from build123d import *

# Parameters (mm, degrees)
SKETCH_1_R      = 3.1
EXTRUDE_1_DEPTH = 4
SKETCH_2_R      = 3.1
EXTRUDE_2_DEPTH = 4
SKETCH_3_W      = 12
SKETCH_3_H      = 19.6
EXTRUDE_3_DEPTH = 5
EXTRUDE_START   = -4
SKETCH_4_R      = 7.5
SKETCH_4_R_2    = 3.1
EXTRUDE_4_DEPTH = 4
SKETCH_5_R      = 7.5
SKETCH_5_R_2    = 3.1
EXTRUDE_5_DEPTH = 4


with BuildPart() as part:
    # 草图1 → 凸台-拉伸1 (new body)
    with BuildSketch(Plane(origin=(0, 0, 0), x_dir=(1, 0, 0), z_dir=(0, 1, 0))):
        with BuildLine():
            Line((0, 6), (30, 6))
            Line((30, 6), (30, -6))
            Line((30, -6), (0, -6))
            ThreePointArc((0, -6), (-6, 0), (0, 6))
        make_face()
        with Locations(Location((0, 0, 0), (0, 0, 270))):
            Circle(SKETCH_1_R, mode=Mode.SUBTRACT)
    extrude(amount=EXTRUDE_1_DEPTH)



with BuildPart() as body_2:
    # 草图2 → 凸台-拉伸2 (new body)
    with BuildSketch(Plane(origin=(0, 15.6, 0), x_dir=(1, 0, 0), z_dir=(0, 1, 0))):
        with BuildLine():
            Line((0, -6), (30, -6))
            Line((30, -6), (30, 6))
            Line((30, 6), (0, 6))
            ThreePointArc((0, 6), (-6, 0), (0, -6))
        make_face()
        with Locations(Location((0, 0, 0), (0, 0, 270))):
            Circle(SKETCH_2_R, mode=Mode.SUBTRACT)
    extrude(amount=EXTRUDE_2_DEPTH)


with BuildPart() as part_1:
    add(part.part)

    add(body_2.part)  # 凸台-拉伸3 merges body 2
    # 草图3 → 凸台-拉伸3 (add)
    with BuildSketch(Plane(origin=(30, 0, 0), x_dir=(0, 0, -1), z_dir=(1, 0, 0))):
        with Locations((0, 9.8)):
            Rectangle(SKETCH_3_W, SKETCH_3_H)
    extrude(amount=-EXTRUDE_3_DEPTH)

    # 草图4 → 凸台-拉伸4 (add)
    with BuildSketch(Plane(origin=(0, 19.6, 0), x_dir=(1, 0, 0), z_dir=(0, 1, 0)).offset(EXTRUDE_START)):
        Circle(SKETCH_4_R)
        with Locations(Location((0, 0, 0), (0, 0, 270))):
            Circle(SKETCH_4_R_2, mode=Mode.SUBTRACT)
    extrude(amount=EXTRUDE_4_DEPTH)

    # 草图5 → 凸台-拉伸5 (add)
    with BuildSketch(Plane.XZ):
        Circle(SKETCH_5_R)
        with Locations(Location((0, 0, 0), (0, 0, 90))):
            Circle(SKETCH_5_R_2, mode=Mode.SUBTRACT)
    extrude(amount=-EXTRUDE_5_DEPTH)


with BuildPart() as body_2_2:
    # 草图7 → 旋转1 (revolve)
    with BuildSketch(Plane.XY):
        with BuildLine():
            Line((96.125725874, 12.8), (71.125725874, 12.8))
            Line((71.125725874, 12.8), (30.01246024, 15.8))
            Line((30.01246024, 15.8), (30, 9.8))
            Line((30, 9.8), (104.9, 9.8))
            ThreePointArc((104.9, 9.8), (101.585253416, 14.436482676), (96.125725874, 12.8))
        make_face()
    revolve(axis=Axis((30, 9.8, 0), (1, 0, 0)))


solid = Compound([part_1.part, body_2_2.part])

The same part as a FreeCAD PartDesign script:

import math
import FreeCAD as App
import Part
import Sketcher
from FreeCAD import Vector
Q = App.Units.Quantity


def add_polygon(sketch, points):
    """Adds a closed chain of lines whose ends are joined by coincident constraints."""
    first, n = sketch.GeometryCount, len(points)
    for a, b in zip(points, points[1:] + points[:1]):
        sketch.addGeometry(Part.LineSegment(App.Vector(*a, 0), App.Vector(*b, 0)), False)
    for i in range(n):
        sketch.addConstraint(Sketcher.Constraint("Coincident", first + i, 2, first + (i + 1) % n, 1))

doc = App.newDocument("Part")
params = doc.addObject("Spreadsheet::Sheet", "Params")
for row, (alias, value) in enumerate([
    ("sketch1_radius", "6 mm"),
    ("sketch1_diameter", "6.2 mm"),
    ("sketch1_width", "30 mm"),
    ("pad1_length", "4 mm"),
    ("sketch2_radius", "6 mm"),
    ("sketch2_diameter", "6.2 mm"),
    ("sketch2_width", "30 mm"),
    ("pad2_length", "4 mm"),
    ("sketch3_height", "12 mm"),
    ("sketch3_width", "19.6 mm"),
    ("pad3_length", "5 mm"),
    ("sketch4_diameter", "15 mm"),
    ("sketch4_diameter2", "6.2 mm"),
    ("pad4_length", "4 mm"),
    ("sketch5_diameter", "15 mm"),
    ("sketch5_diameter2", "6.2 mm"),
    ("pad5_length", "4 mm"),
    ("sketch6_radius", "4.9 mm"),
    ("sketch6_width", "25 mm"),
    ("sketch6_width2", "74.9 mm"),
    ("revolution_angle", "360 deg"),
], start=1):
    params.set(f"A{row}", alias)
    params.set(f"B{row}", "=" + value)
    params.setAlias(f"B{row}", alias)

body = doc.addObject("PartDesign::Body", "Body")

sketch1 = doc.addObject("Sketcher::SketchObject", "Sketch")
body.addObject(sketch1)
sketch1.AttachmentSupport = (doc.XZ_Plane, [""])
sketch1.MapMode = "FlatFace"
sketch1.addGeometry([
    Part.LineSegment(Vector(30, -6, 0), Vector(0, -6, 0)),
    Part.ArcOfCircle(Part.Circle(Vector(0, 0, 0), Vector(0, 0, 1), 6), math.radians(90), math.radians(270)),
    Part.LineSegment(Vector(0, 6, 0), Vector(30, 6, 0)),
    Part.LineSegment(Vector(30, 6, 0), Vector(30, -6, 0)),
    Part.Circle(Vector(0, 0, 0), Vector(0, 0, 1), 3.1),
], False)
sketch1.addConstraint([
    Sketcher.Constraint("Tangent", 0, 2, 1, 2),
    Sketcher.Constraint("Tangent", 1, 1, 2, 1),
    Sketcher.Constraint("Coincident", 2, 2, 3, 1),
    Sketcher.Constraint("Coincident", 3, 2, 0, 1),
    Sketcher.Constraint("Horizontal", 0),
    Sketcher.Constraint("Horizontal", 2),
    Sketcher.Constraint("Vertical", 3),
    Sketcher.Constraint("Coincident", 1, 3, -1, 1),
    Sketcher.Constraint("Coincident", 4, 3, -1, 1),
    Sketcher.Constraint("Radius", 1, Q("6 mm")),
    Sketcher.Constraint("Diameter", 4, Q("6.2 mm")),
    Sketcher.Constraint("DistanceX", 0, 2, 0, 1, Q("30 mm")),
])
sketch1.setExpression("Constraints[9]", "Params.sketch1_radius")
sketch1.setExpression("Constraints[10]", "Params.sketch1_diameter")
sketch1.setExpression("Constraints[11]", "Params.sketch1_width")
pad1 = doc.addObject("PartDesign::Pad", "Pad")
body.addObject(pad1)
pad1.Profile = sketch1
pad1.setExpression("Length", "Params.pad1_length")
pad1.Reversed = True
body2 = doc.addObject("PartDesign::Body", "Body001")

sketch2 = doc.addObject("Sketcher::SketchObject", "Sketch001")
body2.addObject(sketch2)
sketch2.AttachmentSupport = (doc.getObject("XZ_Plane001"), [""])
sketch2.MapMode = "FlatFace"
sketch2.AttachmentOffset = App.Placement(Vector(0, 0, -15.6), App.Rotation())
sketch2.addGeometry([
    Part.LineSegment(Vector(0, 6, 0), Vector(30, 6, 0)),
    Part.LineSegment(Vector(30, 6, 0), Vector(30, -6, 0)),
    Part.LineSegment(Vector(30, -6, 0), Vector(0, -6, 0)),
    Part.ArcOfCircle(Part.Circle(Vector(0, 0, 0), Vector(0, 0, 1), 6), math.radians(90), math.radians(270)),
    Part.Circle(Vector(0, 0, 0), Vector(0, 0, 1), 3.1),
], False)
sketch2.addConstraint([
    Sketcher.Constraint("Coincident", 0, 2, 1, 1),
    Sketcher.Constraint("Coincident", 1, 2, 2, 1),
    Sketcher.Constraint("Tangent", 2, 2, 3, 2),
    Sketcher.Constraint("Tangent", 3, 1, 0, 1),
    Sketcher.Constraint("Horizontal", 0),
    Sketcher.Constraint("Vertical", 1),
    Sketcher.Constraint("Horizontal", 2),
    Sketcher.Constraint("Coincident", 3, 3, -1, 1),
    Sketcher.Constraint("Coincident", 4, 3, -1, 1),
    Sketcher.Constraint("Radius", 3, Q("6 mm")),
    Sketcher.Constraint("Diameter", 4, Q("6.2 mm")),
    Sketcher.Constraint("DistanceX", 0, 1, 0, 2, Q("30 mm")),
])
sketch2.setExpression("Constraints[9]", "Params.sketch2_radius")
sketch2.setExpression("Constraints[10]", "Params.sketch2_diameter")
sketch2.setExpression("Constraints[11]", "Params.sketch2_width")
pad2 = doc.addObject("PartDesign::Pad", "Pad001")
body2.addObject(pad2)
pad2.Profile = sketch2
pad2.setExpression("Length", "Params.pad2_length")
pad2.Reversed = True
body.AllowCompound = True
doc.recompute()

boolean = doc.addObject("PartDesign::Boolean", "Boolean")
body.addObject(boolean)
boolean.Type = "Fuse"
boolean.addObjects([body2])

sketch3 = doc.addObject("Sketcher::SketchObject", "Sketch002")
body.addObject(sketch3)
sketch3.AttachmentSupport = (doc.YZ_Plane, [""])
sketch3.MapMode = "FlatFace"
sketch3.AttachmentOffset = App.Placement(Vector(0, 0, 30), App.Rotation())
add_polygon(sketch3, [(19.6, 6), (0, 6), (0, -6), (19.6, -6)])
sketch3.addConstraint([
    Sketcher.Constraint("Horizontal", 0),
    Sketcher.Constraint("Vertical", 1),
    Sketcher.Constraint("Horizontal", 2),
    Sketcher.Constraint("Vertical", 3),
    Sketcher.Constraint("Symmetric", 0, 2, 1, 2, -1, 1),
    Sketcher.Constraint("DistanceY", 1, 2, 1, 1, Q("12 mm")),
    Sketcher.Constraint("DistanceX", 0, 2, 0, 1, Q("19.6 mm")),
])
sketch3.setExpression("Constraints[9]", "Params.sketch3_height")
sketch3.setExpression("Constraints[10]", "Params.sketch3_width")
pad3 = doc.addObject("PartDesign::Pad", "Pad002")
body.addObject(pad3)
pad3.Profile = sketch3
pad3.setExpression("Length", "Params.pad3_length")
pad3.Reversed = True

sketch4 = doc.addObject("Sketcher::SketchObject", "Sketch003")
body.addObject(sketch4)
sketch4.AttachmentSupport = (doc.XZ_Plane, [""])
sketch4.MapMode = "FlatFace"
sketch4.AttachmentOffset = App.Placement(Vector(0, 0, -15.6), App.Rotation())
sketch4.addGeometry([
    Part.Circle(Vector(0, 0, 0), Vector(0, 0, 1), 7.5),
    Part.Circle(Vector(0, 0, 0), Vector(0, 0, 1), 3.1),
], False)
sketch4.addConstraint([
    Sketcher.Constraint("Coincident", 0, 3, -1, 1),
    Sketcher.Constraint("Coincident", 1, 3, -1, 1),
    Sketcher.Constraint("Diameter", 0, Q("15 mm")),
    Sketcher.Constraint("Diameter", 1, Q("6.2 mm")),
])
sketch4.setExpression("Constraints[2]", "Params.sketch4_diameter")
sketch4.setExpression("Constraints[3]", "Params.sketch4_diameter2")
pad4 = doc.addObject("PartDesign::Pad", "Pad003")
body.addObject(pad4)
pad4.Profile = sketch4
pad4.setExpression("Length", "Params.pad4_length")
pad4.Reversed = True

sketch5 = doc.addObject("Sketcher::SketchObject", "Sketch004")
body.addObject(sketch5)
sketch5.AttachmentSupport = (doc.XZ_Plane, [""])
sketch5.MapMode = "FlatFace"
sketch5.addGeometry([
    Part.Circle(Vector(0, 0, 0), Vector(0, 0, 1), 7.5),
    Part.Circle(Vector(0, 0, 0), Vector(0, 0, 1), 3.1),
], False)
sketch5.addConstraint([
    Sketcher.Constraint("Coincident", 0, 3, -1, 1),
    Sketcher.Constraint("Coincident", 1, 3, -1, 1),
    Sketcher.Constraint("Diameter", 0, Q("15 mm")),
    Sketcher.Constraint("Diameter", 1, Q("6.2 mm")),
])
sketch5.setExpression("Constraints[2]", "Params.sketch5_diameter")
sketch5.setExpression("Constraints[3]", "Params.sketch5_diameter2")
pad5 = doc.addObject("PartDesign::Pad", "Pad004")
body.addObject(pad5)
pad5.Profile = sketch5
pad5.setExpression("Length", "Params.pad5_length")
pad5.Reversed = True
body3 = doc.addObject("PartDesign::Body", "Body002")

sketch6 = doc.addObject("Sketcher::SketchObject", "Sketch005")
body3.addObject(sketch6)
sketch6.AttachmentSupport = (doc.getObject("XY_Plane002"), [""])
sketch6.MapMode = "FlatFace"
sketch6.addGeometry([
    Part.LineSegment(Vector(96.125726, 12.8, 0), Vector(71.125726, 12.8, 0)),
    Part.LineSegment(Vector(71.125726, 12.8, 0), Vector(30.01246, 15.8, 0)),
    Part.LineSegment(Vector(30.01246, 15.8, 0), Vector(30, 9.8, 0)),
    Part.LineSegment(Vector(30, 9.8, 0), Vector(104.9, 9.8, 0)),
    Part.ArcOfCircle(Part.Circle(Vector(100, 9.8, 0), Vector(0, 0, 1), 4.9), math.radians(0), math.radians(142.247999)),
], False)
sketch6.addGeometry(Part.LineSegment(Vector(30, 9.8, 0), Vector(104.9, 9.8, 0)), True)
sketch6.addConstraint([
    Sketcher.Constraint("Coincident", 0, 2, 1, 1),
    Sketcher.Constraint("Coincident", 1, 2, 2, 1),
    Sketcher.Constraint("Coincident", 2, 2, 3, 1),
    Sketcher.Constraint("Coincident", 3, 2, 4, 1),
    Sketcher.Constraint("Coincident", 4, 2, 0, 1),
    Sketcher.Constraint("Horizontal", 0),
    Sketcher.Constraint("Horizontal", 3),
    Sketcher.Constraint("Horizontal", 5),
    Sketcher.Constraint("Coincident", 5, 1, 2, 2),
    Sketcher.Constraint("Horizontal", 4, 3, 2, 2),
    Sketcher.Constraint("Equal", 3, 5),
    Sketcher.Constraint("Radius", 4, Q("4.9 mm")),
    Sketcher.Constraint("DistanceX", 0, 2, 0, 1, Q("25 mm")),
    Sketcher.Constraint("DistanceX", 3, 1, 3, 2, Q("74.9 mm")),
    Sketcher.Constraint("DistanceX", -1, 1, 4, 3, Q("100 mm")),
    Sketcher.Constraint("DistanceY", 4, 3, 0, 2, Q("3 mm")),
    Sketcher.Constraint("DistanceY", 0, 2, 1, 2, Q("3 mm")),
    Sketcher.Constraint("DistanceY", -1, 1, 4, 3, Q("9.8 mm")),
    Sketcher.Constraint("DistanceX", -1, 1, 1, 2, Q("30.01246 mm")),
])
sketch6.setExpression("Constraints[11]", "Params.sketch6_radius")
sketch6.setExpression("Constraints[12]", "Params.sketch6_width")
sketch6.setExpression("Constraints[13]", "Params.sketch6_width2")
revolution = doc.addObject("PartDesign::Revolution", "Revolution")
body3.addObject(revolution)
revolution.Profile = sketch6
revolution.ReferenceAxis = (sketch6, ["Axis0"])
revolution.setExpression("Angle", "Params.revolution_angle")

doc.recompute()
